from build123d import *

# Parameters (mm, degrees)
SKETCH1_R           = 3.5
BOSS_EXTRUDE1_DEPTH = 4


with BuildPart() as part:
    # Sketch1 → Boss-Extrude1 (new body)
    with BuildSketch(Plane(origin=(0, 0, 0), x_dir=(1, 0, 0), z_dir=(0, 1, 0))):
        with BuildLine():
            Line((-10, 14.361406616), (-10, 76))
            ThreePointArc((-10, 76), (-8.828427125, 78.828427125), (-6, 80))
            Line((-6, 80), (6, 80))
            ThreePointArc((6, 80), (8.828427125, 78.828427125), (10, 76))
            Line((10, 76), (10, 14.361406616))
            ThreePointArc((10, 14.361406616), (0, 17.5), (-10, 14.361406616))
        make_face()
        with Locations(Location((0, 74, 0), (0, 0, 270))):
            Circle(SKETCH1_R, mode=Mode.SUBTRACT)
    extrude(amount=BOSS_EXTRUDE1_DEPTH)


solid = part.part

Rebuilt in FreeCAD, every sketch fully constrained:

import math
import FreeCAD as App
import Part
import Sketcher

doc = App.newDocument("Part")
body = doc.addObject("PartDesign::Body", "Body")

# Sketch on XZ plane
sketch1 = body.newObject("Sketcher::SketchObject", "Sketch")
sketch1.AttachmentSupport = (doc.getObject("XZ_Plane"), [""])
sketch1.MapMode = "FlatFace"
sketch1.addGeometry([
    Part.LineSegment(App.Vector(-10, -76, 0), App.Vector(-10, -14.361407, 0)),  # 0
    Part.ArcOfCircle(Part.Circle(App.Vector(0, 0, 0), App.Vector(0, 0, 1), 17.5), math.radians(-124.849905), math.radians(-55.150095)),  # 1
    Part.LineSegment(App.Vector(10, -14.361407, 0), App.Vector(10, -76, 0)),  # 2
    Part.ArcOfCircle(Part.Circle(App.Vector(6, -76, 0), App.Vector(0, 0, 1), 4), math.radians(-90), math.radians(0)),  # 3
    Part.LineSegment(App.Vector(6, -80, 0), App.Vector(-6, -80, 0)),  # 4
    Part.ArcOfCircle(Part.Circle(App.Vector(-6, -76, 0), App.Vector(0, 0, 1), 4), math.radians(180), math.radians(270)),  # 5
    Part.Circle(App.Vector(0, -74, 0), App.Vector(0, 0, 1), 3.5),  # 6
], False)
sketch1.addConstraint([
    Sketcher.Constraint("Coincident", 0, 2, 1, 1),
    Sketcher.Constraint("Coincident", 1, 2, 2, 1),
    Sketcher.Constraint("Tangent", 2, 2, 3, 2),
    Sketcher.Constraint("Tangent", 3, 1, 4, 1),
    Sketcher.Constraint("Tangent", 4, 2, 5, 2),
    Sketcher.Constraint("Tangent", 5, 1, 0, 1),
    Sketcher.Constraint("Vertical", 0),
    Sketcher.Constraint("Vertical", 2),
    Sketcher.Constraint("Horizontal", 4),
    Sketcher.Constraint("Coincident", 1, 3, -1, 1),
    Sketcher.Constraint("Equal", 3, 5),
    Sketcher.Constraint("PointOnObject", 6, 3, -2),
    Sketcher.Constraint("Horizontal", 0, 2, 1, 2),
    Sketcher.Constraint("Diameter", 6, 7.0),
    Sketcher.Constraint("Radius", 3, 4.0),
    Sketcher.Constraint("Radius", 1, 17.5),
    Sketcher.Constraint("DistanceX", 4, 2, 4, 1, 12.0),
    Sketcher.Constraint("DistanceY", 3, 3, -1, 1, 76.0),
    Sketcher.Constraint("DistanceY", 6, 3, -1, 1, 74.0),
])
pad1 = body.newObject("PartDesign::Pad", "Pad")
pad1.Profile = sketch1
pad1.Length = 4
pad1.Reversed = True

doc.recompute()
